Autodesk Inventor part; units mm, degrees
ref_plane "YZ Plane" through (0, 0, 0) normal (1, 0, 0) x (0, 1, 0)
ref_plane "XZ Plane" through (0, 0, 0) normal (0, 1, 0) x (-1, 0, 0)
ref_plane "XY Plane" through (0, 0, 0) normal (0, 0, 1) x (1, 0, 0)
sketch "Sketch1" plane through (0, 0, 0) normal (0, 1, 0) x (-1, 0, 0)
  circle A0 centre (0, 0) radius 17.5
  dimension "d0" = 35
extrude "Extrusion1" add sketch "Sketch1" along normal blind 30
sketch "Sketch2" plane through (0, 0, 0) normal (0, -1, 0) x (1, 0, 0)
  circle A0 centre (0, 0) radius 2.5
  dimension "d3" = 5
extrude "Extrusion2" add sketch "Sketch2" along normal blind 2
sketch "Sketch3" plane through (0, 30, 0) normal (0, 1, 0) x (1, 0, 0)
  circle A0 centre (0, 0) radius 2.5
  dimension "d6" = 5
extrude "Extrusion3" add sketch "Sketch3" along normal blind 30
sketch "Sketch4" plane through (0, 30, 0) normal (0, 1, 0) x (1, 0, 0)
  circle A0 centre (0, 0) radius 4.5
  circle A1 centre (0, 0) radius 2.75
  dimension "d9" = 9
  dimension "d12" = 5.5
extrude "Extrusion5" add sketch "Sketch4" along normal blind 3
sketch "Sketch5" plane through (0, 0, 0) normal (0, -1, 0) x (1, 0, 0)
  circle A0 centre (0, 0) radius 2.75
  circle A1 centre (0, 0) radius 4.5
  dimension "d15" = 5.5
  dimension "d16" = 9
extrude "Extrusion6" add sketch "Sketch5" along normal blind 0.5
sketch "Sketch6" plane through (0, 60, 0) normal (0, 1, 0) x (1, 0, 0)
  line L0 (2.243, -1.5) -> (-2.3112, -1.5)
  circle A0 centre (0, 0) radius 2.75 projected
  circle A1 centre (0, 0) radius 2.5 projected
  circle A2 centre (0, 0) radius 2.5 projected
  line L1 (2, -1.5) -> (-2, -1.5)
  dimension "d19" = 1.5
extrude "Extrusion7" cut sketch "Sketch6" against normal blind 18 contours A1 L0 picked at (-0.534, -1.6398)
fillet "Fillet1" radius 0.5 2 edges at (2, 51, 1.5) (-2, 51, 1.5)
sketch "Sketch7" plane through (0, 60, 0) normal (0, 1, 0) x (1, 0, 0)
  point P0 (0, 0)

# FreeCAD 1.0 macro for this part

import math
import FreeCAD as App
import Part
import Sketcher
from FreeCAD import Vector
Q = App.Units.Quantity


def edges_at(feature, points):
    """Names of the edges that pass closest to the given points."""
    edges = feature.Shape.Edges
    near = lambda p: min(range(len(edges)), key=lambda i: edges[i].distToShape(Part.Vertex(*p))[0])
    return sorted({f"Edge{near(p) + 1}" for p in points})

doc = App.newDocument("Part")
body = doc.addObject("PartDesign::Body", "Body")

sketch1 = doc.addObject("Sketcher::SketchObject", "Sketch")
body.addObject(sketch1)
sketch1.AttachmentSupport = (doc.XZ_Plane, [""])
sketch1.MapMode = "FlatFace"
sketch1.addGeometry(Part.Circle(Vector(0, 0, 0), Vector(0, 0, 1), 18), False)
sketch1.addConstraint(Sketcher.Constraint("Coincident", 0, 3, -1, 1))
sketch1.addConstraint(Sketcher.Constraint("Diameter", 0, Q("35 mm")))
pad1 = doc.addObject("PartDesign::Pad", "Pad")
body.addObject(pad1)
pad1.Profile = sketch1
pad1.Length = 30
pad1.Reversed = True

sketch2 = doc.addObject("Sketcher::SketchObject", "Sketch001")
body.addObject(sketch2)
sketch2.AttachmentSupport = (doc.XZ_Plane, [""])
sketch2.MapMode = "FlatFace"
sketch2.addGeometry(Part.Circle(Vector(0, 0, 0), Vector(0, 0, 1), 2.5), False)
sketch2.addConstraint(Sketcher.Constraint("Coincident", 0, 3, -1, 1))
sketch2.addConstraint(Sketcher.Constraint("Diameter", 0, Q("5 mm")))
pad2 = doc.addObject("PartDesign::Pad", "Pad001")
body.addObject(pad2)
pad2.Profile = sketch2
pad2.Length = 2

sketch3 = doc.addObject("Sketcher::SketchObject", "Sketch002")
body.addObject(sketch3)
sketch3.AttachmentSupport = (doc.XZ_Plane, [""])
sketch3.MapMode = "FlatFace"
sketch3.AttachmentOffset = App.Placement(Vector(0, 0, -30), App.Rotation())
sketch3.addGeometry(Part.Circle(Vector(0, 0, 0), Vector(0, 0, 1), 2.5), False)
sketch3.addConstraint(Sketcher.Constraint("Coincident", 0, 3, -1, 1))
sketch3.addConstraint(Sketcher.Constraint("Diameter", 0, Q("5 mm")))
pad3 = doc.addObject("PartDesign::Pad", "Pad002")
body.addObject(pad3)
pad3.Profile = sketch3
pad3.Length = 30
pad3.Reversed = True

sketch4 = doc.addObject("Sketcher::SketchObject", "Sketch003")
body.addObject(sketch4)
sketch4.AttachmentSupport = (doc.XZ_Plane, [""])
sketch4.MapMode = "FlatFace"
sketch4.AttachmentOffset = App.Placement(Vector(0, 0, -30), App.Rotation())
sketch4.addGeometry(Part.Circle(Vector(0, 0, 0), Vector(0, 0, 1), 4.5), False)
sketch4.addGeometry(Part.Circle(Vector(0, 0, 0), Vector(0, 0, 1), 2.8), False)
sketch4.addConstraint(Sketcher.Constraint("Coincident", 0, 3, -1, 1))
sketch4.addConstraint(Sketcher.Constraint("Coincident", 1, 3, -1, 1))
sketch4.addConstraint(Sketcher.Constraint("Diameter", 0, Q("9 mm")))
sketch4.addConstraint(Sketcher.Constraint("Diameter", 1, Q("5.5 mm")))
pad4 = doc.addObject("PartDesign::Pad", "Pad003")
body.addObject(pad4)
pad4.Profile = sketch4
pad4.Length = 3
pad4.Reversed = True

sketch5 = doc.addObject("Sketcher::SketchObject", "Sketch004")
body.addObject(sketch5)
sketch5.AttachmentSupport = (doc.XZ_Plane, [""])
sketch5.MapMode = "FlatFace"
sketch5.addGeometry(Part.Circle(Vector(0, 0, 0), Vector(0, 0, 1), 4.5), False)
sketch5.addGeometry(Part.Circle(Vector(0, 0, 0), Vector(0, 0, 1), 2.8), False)
sketch5.addConstraint(Sketcher.Constraint("Coincident", 0, 3, -1, 1))
sketch5.addConstraint(Sketcher.Constraint("Coincident", 1, 3, -1, 1))
sketch5.addConstraint(Sketcher.Constraint("Diameter", 0, Q("9 mm")))
sketch5.addConstraint(Sketcher.Constraint("Diameter", 1, Q("5.5 mm")))
pad5 = doc.addObject("PartDesign::Pad", "Pad004")
body.addObject(pad5)
pad5.Profile = sketch5
pad5.Length = 0.5

sketch6 = doc.addObject("Sketcher::SketchObject", "Sketch005")
body.addObject(sketch6)
sketch6.AttachmentSupport = (doc.XZ_Plane, [""])
sketch6.MapMode = "FlatFace"
sketch6.AttachmentOffset = App.Placement(Vector(0, 0, -60), App.Rotation())
sketch6.addGeometry(Part.ArcOfCircle(Part.Circle(Vector(0, 0, 0), Vector(0, 0, 1), 2.5), math.radians(37), math.radians(143)), False)
sketch6.addGeometry(Part.LineSegment(Vector(2, 1.5, 0), Vector(-2, 1.5, 0)), False)
sketch6.addConstraint(Sketcher.Constraint("Coincident", 0, 1, 1, 1))
sketch6.addConstraint(Sketcher.Constraint("Coincident", 1, 2, 0, 2))
sketch6.addConstraint(Sketcher.Constraint("Horizontal", 1))
sketch6.addConstraint(Sketcher.Constraint("Coincident", 0, 3, -1, 1))
sketch6.addConstraint(Sketcher.Constraint("DistanceY", -1, 1, 0, 1, Q("1.5 mm")))
sketch6.addConstraint(Sketcher.Constraint("Radius", 0, Q("2.5 mm")))
pocket1 = doc.addObject("PartDesign::Pocket", "Pocket")
body.addObject(pocket1)
pocket1.Profile = sketch6
pocket1.Length = 18
pocket1.Reversed = True
doc.recompute()

fillet = doc.addObject("PartDesign::Fillet", "Fillet")
body.addObject(fillet)
fillet.Base = (pocket1, edges_at(pocket1, [(2, 51, 1.5), (-2, 51, 1.5)]))
fillet.Radius = 0.5

doc.recompute()
